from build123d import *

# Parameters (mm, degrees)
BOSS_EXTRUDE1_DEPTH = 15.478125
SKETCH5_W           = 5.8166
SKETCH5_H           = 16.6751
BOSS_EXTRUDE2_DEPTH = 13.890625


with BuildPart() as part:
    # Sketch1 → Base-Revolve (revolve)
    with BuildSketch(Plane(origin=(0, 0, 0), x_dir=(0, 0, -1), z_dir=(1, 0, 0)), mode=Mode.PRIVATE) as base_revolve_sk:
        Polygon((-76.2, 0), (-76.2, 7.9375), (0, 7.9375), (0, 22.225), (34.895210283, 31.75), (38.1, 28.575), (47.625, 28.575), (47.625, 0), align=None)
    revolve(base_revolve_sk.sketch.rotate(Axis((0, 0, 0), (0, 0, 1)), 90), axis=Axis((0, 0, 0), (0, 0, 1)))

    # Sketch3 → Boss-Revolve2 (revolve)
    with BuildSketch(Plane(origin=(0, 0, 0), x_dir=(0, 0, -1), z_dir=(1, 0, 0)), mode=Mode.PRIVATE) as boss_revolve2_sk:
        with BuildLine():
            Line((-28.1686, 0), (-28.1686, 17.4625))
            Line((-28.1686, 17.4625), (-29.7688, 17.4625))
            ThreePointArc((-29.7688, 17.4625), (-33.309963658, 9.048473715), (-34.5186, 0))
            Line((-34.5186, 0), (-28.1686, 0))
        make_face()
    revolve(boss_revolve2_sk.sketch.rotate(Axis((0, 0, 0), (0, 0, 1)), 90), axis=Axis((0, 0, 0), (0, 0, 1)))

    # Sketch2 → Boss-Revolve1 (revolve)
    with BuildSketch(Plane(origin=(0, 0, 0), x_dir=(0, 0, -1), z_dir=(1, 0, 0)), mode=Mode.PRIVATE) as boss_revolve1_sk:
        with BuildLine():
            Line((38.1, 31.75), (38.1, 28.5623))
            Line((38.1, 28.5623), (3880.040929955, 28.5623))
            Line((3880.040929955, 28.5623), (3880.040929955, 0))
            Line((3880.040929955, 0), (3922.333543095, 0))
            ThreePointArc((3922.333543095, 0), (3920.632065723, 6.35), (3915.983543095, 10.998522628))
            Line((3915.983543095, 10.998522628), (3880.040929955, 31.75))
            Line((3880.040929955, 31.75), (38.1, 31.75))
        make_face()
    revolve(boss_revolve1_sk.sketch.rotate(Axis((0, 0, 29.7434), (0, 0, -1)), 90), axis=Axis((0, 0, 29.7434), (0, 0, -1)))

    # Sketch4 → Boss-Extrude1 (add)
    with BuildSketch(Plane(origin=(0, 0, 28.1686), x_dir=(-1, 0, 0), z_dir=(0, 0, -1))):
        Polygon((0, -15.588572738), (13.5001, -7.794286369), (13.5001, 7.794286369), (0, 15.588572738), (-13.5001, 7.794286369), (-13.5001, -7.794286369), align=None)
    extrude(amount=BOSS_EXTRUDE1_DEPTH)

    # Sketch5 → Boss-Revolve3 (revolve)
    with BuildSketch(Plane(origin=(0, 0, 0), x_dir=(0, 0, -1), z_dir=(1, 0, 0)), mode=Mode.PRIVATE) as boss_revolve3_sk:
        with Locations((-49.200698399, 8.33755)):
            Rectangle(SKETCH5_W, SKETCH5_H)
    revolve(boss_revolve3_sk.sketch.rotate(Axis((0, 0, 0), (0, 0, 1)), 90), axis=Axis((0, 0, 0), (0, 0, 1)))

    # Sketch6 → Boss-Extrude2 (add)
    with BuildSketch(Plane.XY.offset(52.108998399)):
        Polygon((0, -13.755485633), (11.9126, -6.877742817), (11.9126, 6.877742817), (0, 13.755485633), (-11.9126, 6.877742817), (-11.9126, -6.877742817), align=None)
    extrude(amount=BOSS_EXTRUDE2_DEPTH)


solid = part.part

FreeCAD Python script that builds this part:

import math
import FreeCAD as App
import Part
import Sketcher
Q = App.Units.Quantity


def add_polygon(sketch, points):
    """Adds a closed chain of lines whose ends are joined by coincident constraints."""
    first, n = sketch.GeometryCount, len(points)
    for a, b in zip(points, points[1:] + points[:1]):
        sketch.addGeometry(Part.LineSegment(App.Vector(*a, 0), App.Vector(*b, 0)), False)
    for i in range(n):
        sketch.addConstraint(Sketcher.Constraint("Coincident", first + i, 2, first + (i + 1) % n, 1))

doc = App.newDocument("Part")
body = doc.addObject("PartDesign::Body", "Body")

sketch1 = doc.addObject("Sketcher::SketchObject", "Sketch")
body.addObject(sketch1)
sketch1.AttachmentSupport = (doc.YZ_Plane, [""])
sketch1.MapMode = "FlatFace"
add_polygon(sketch1, [(7.9, 76.2), (0, 76.2), (0, -47.6), (28.6, -47.6), (28.6, -38.1), (31.8, -34.9), (22.2, 0), (7.9, 0)])
sketch1.addConstraint([
    Sketcher.Constraint("Horizontal", 0),
    Sketcher.Constraint("Vertical", 1),
    Sketcher.Constraint("Horizontal", 2),
    Sketcher.Constraint("Vertical", 3),
    Sketcher.Constraint("Horizontal", 6),
    Sketcher.Constraint("Vertical", 7),
    Sketcher.Constraint("PointOnObject", 0, 2, -2),
    Sketcher.Constraint("PointOnObject", 5, 2, -1),
    Sketcher.Constraint("DistanceY", 7, 1, 7, 2, Q("3 in")),
    Sketcher.Constraint("DistanceY", 3, 2, -1, 1, Q("1.5 in")),
    Sketcher.Constraint("DistanceX", 0, 2, 0, 1, Q("0.3125 in")),
    Sketcher.Constraint("DistanceX", 2, 1, 2, 2, Q("1.125 in")),
    Sketcher.Constraint("DistanceX", 6, 2, 6, 1, Q("0.5625 in")),
    Sketcher.Constraint("DistanceY", 1, 2, 1, 1, Q("4.875 in")),
    Sketcher.Constraint("DistanceX", -1, 1, 4, 2, Q("1.25 in")),
    Sketcher.Constraint("Distance", 4, Q("4.511242 mm")),
])
revolution = doc.addObject("PartDesign::Revolution", "Revolution")
body.addObject(revolution)
revolution.Profile = sketch1
revolution.ReferenceAxis = (sketch1, ["V_Axis"])
revolution.Angle = 360

sketch2 = doc.addObject("Sketcher::SketchObject", "Sketch001")
body.addObject(sketch2)
sketch2.AttachmentSupport = (doc.YZ_Plane, [""])
sketch2.MapMode = "FlatFace"
sketch2.addGeometry([
    Part.LineSegment(App.Vector(0, 28.2, 0), App.Vector(17.5, 28.2, 0)),
    Part.LineSegment(App.Vector(17.5, 28.2, 0), App.Vector(17.5, 29.8, 0)),
    Part.ArcOfCircle(Part.Circle(App.Vector(0, 0, 0), App.Vector(0, 0, 1), 34.5), math.radians(60), math.radians(90)),
    Part.LineSegment(App.Vector(0, 34.5, 0), App.Vector(0, 28.2, 0)),
], False)
sketch2.addConstraint([
    Sketcher.Constraint("Coincident", 0, 2, 1, 1),
    Sketcher.Constraint("Coincident", 1, 2, 2, 1),
    Sketcher.Constraint("Coincident", 2, 2, 3, 1),
    Sketcher.Constraint("Coincident", 3, 2, 0, 1),
    Sketcher.Constraint("Horizontal", 0),
    Sketcher.Constraint("Vertical", 1),
    Sketcher.Constraint("Vertical", 3),
    Sketcher.Constraint("PointOnObject", 2, 3, -2),
    Sketcher.Constraint("PointOnObject", 2, 2, -2),
    Sketcher.Constraint("DistanceY", 3, 2, 3, 1, Q("0.25 in")),
    Sketcher.Constraint("DistanceX", 0, 1, 0, 2, Q("0.6875 in")),
    Sketcher.Constraint("DistanceY", 1, 1, 1, 2, Q("0.063 in")),
    Sketcher.Constraint("DistanceY", -1, 1, 0, 2, Q("1.109 in")),
])
revolution2 = doc.addObject("PartDesign::Revolution", "Revolution001")
body.addObject(revolution2)
revolution2.Profile = sketch2
revolution2.ReferenceAxis = (sketch2, ["V_Axis"])
revolution2.Angle = 360

sketch3 = doc.addObject("Sketcher::SketchObject", "Sketch002")
body.addObject(sketch3)
sketch3.AttachmentSupport = (doc.YZ_Plane, [""])
sketch3.MapMode = "FlatFace"
sketch3.addGeometry([
    Part.LineSegment(App.Vector(31.8, -38.1, 0), App.Vector(28.6, -38.1, 0)),
    Part.LineSegment(App.Vector(28.6, -38.1, 0), App.Vector(28.6, -3880, 0)),
    Part.LineSegment(App.Vector(28.6, -3880, 0), App.Vector(0, -3880, 0)),
    Part.LineSegment(App.Vector(0, -3880, 0), App.Vector(0, -3922.3, 0)),
    Part.ArcOfCircle(Part.Circle(App.Vector(0, -3909.6, 0), App.Vector(0, 0, 1), 12.7), math.radians(-90), math.radians(-30)),
    Part.LineSegment(App.Vector(11, -3916, 0), App.Vector(31.8, -3880, 0)),
    Part.LineSegment(App.Vector(31.8, -3880, 0), App.Vector(31.8, -38.1, 0)),
], False)
sketch3.addConstraint([
    Sketcher.Constraint("Coincident", 0, 2, 1, 1),
    Sketcher.Constraint("Coincident", 1, 2, 2, 1),
    Sketcher.Constraint("Coincident", 2, 2, 3, 1),
    Sketcher.Constraint("Coincident", 3, 2, 4, 1),
    Sketcher.Constraint("Tangent", 4, 2, 5, 1),
    Sketcher.Constraint("Coincident", 5, 2, 6, 1),
    Sketcher.Constraint("Coincident", 6, 2, 0, 1),
    Sketcher.Constraint("Horizontal", 0),
    Sketcher.Constraint("Vertical", 1),
    Sketcher.Constraint("Horizontal", 2),
    Sketcher.Constraint("Vertical", 3),
    Sketcher.Constraint("Vertical", 6),
    Sketcher.Constraint("PointOnObject", 4, 3, -2),
    Sketcher.Constraint("PointOnObject", 2, 2, -2),
    Sketcher.Constraint("Horizontal", 2, 2, 5, 2),
    Sketcher.Constraint("Radius", 4, Q("0.5 in")),
    Sketcher.Constraint("Angle", 5, Q("60 deg")),
    Sketcher.Constraint("DistanceY", 0, 2, -1, 1, Q("1.5 in")),
    Sketcher.Constraint("DistanceX", -1, 1, 5, 2, Q("1.25 in")),
    Sketcher.Constraint("DistanceX", 0, 2, 0, 1, Q("0.1255 in")),
    Sketcher.Constraint("DistanceY", 1, 2, 1, 1, Q("3841.94093 mm")),
])
revolution3 = doc.addObject("PartDesign::Revolution", "Revolution002")
body.addObject(revolution3)
revolution3.Profile = sketch3
revolution3.ReferenceAxis = (sketch3, ["V_Axis"])
revolution3.Angle = 360

sketch4 = doc.addObject("Sketcher::SketchObject", "Sketch003")
body.addObject(sketch4)
sketch4.AttachmentSupport = (doc.XY_Plane, [""])
sketch4.MapMode = "FlatFace"
sketch4.AttachmentOffset = App.Placement(App.Vector(0, 0, 1.109 * 25.4), App.Rotation())
add_polygon(sketch4, [(0, -16), (-14, -8), (-14, 8), (0, 16), (14, 8), (14, -8)])
sketch4.addConstraint([
    Sketcher.Constraint("Vertical", 1),
    Sketcher.Constraint("Vertical", 4),
    Sketcher.Constraint("Symmetric", 0, 2, 3, 2, -1, 1),
    Sketcher.Constraint("Symmetric", 2, 2, 5, 2, -1, 1),
    Sketcher.Constraint("PointOnObject", 2, 2, -2),
    Sketcher.Constraint("Parallel", 2, 5),
    Sketcher.Constraint("Horizontal", 1, 2, 3, 2),
    Sketcher.Constraint("Angle", 0, Q("150 deg")),
    Sketcher.Constraint("DistanceX", 1, 2, 3, 2, Q("1.063 in")),
    Sketcher.Constraint("DistanceY", 1, 1, 1, 2, Q("15.588573 mm")),
])
pad1 = doc.addObject("PartDesign::Pad", "Pad")
body.addObject(pad1)
pad1.Profile = sketch4
pad1.Length = Q("0.609375 in")
pad1.Reversed = True

sketch5 = doc.addObject("Sketcher::SketchObject", "Sketch004")
body.addObject(sketch5)
sketch5.AttachmentSupport = (doc.YZ_Plane, [""])
sketch5.MapMode = "FlatFace"
add_polygon(sketch5, [(17, 52), (0, 52), (0, 46), (17, 46)])
sketch5.addConstraint([
    Sketcher.Constraint("Horizontal", 0),
    Sketcher.Constraint("Vertical", 1),
    Sketcher.Constraint("Horizontal", 2),
    Sketcher.Constraint("Vertical", 3),
    Sketcher.Constraint("PointOnObject", 0, 2, -2),
    Sketcher.Constraint("DistanceY", 1, 2, 1, 1, Q("0.229 in")),
    Sketcher.Constraint("DistanceX", 0, 2, 0, 1, Q("0.6565 in")),
    Sketcher.Constraint("DistanceY", -1, 1, 0, 2, Q("52.108998 mm")),
])
revolution4 = doc.addObject("PartDesign::Revolution", "Revolution003")
body.addObject(revolution4)
revolution4.Profile = sketch5
revolution4.ReferenceAxis = (sketch5, ["V_Axis"])
revolution4.Angle = 360

sketch6 = doc.addObject("Sketcher::SketchObject", "Sketch005")
body.addObject(sketch6)
sketch6.AttachmentSupport = (doc.XY_Plane, [""])
sketch6.MapMode = "FlatFace"
sketch6.AttachmentOffset = App.Placement(App.Vector(0, 0, 52.108998), App.Rotation())
add_polygon(sketch6, [(0, -14), (12, -7), (12, 7), (0, 14), (-12, 7), (-12, -7)])
sketch6.addConstraint([
    Sketcher.Constraint("Vertical", 1),
    Sketcher.Constraint("Vertical", 4),
    Sketcher.Constraint("Symmetric", 0, 2, 3, 2, -1, 1),
    Sketcher.Constraint("Symmetric", 2, 2, 5, 2, -1, 1),
    Sketcher.Constraint("PointOnObject", 2, 2, -2),
    Sketcher.Constraint("Parallel", 2, 5),
    Sketcher.Constraint("Horizontal", 1, 2, 3, 2),
    Sketcher.Constraint("Angle", 0, Q("30 deg")),
    Sketcher.Constraint("DistanceX", -1, 1, 0, 2, Q("0.469 in")),
    Sketcher.Constraint("DistanceY", 1, 1, 1, 2, Q("13.755486 mm")),
])
pad2 = doc.addObject("PartDesign::Pad", "Pad001")
body.addObject(pad2)
pad2.Profile = sketch6
pad2.Length = Q("0.546875 in")

doc.recompute()
